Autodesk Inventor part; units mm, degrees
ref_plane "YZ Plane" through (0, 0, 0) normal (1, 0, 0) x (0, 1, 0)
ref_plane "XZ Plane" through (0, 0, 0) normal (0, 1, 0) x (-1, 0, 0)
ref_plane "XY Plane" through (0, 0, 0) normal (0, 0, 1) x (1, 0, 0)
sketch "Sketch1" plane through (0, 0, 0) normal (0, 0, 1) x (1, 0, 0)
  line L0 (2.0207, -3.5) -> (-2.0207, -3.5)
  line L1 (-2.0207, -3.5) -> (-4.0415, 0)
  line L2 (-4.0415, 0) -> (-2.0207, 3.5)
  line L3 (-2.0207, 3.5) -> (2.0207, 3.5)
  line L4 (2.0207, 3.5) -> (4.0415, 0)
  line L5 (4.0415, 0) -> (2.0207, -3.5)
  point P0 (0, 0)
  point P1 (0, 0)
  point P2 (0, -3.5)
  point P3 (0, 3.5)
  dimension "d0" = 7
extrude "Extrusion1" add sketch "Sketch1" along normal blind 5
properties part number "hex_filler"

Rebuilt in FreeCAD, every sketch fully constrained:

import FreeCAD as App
import Part
import Sketcher
from FreeCAD import Vector
Q = App.Units.Quantity

doc = App.newDocument("Part")
body = doc.addObject("PartDesign::Body", "Body")

# Sketch on XY plane
sketch1 = body.newObject("Sketcher::SketchObject", "Sketch")
sketch1.AttachmentSupport = (doc.getObject("XY_Plane"), [""])
sketch1.MapMode = "FlatFace"
sketch1.addGeometry(Part.LineSegment(Vector(-2, -3.5, 0), Vector(2, -3.5, 0)), False)
sketch1.addGeometry(Part.LineSegment(Vector(2, -3.5, 0), Vector(4, 0, 0)), False)
sketch1.addGeometry(Part.LineSegment(Vector(4, 0, 0), Vector(2, 3.5, 0)), False)
sketch1.addGeometry(Part.LineSegment(Vector(2, 3.5, 0), Vector(-2, 3.5, 0)), False)
sketch1.addGeometry(Part.LineSegment(Vector(-2, 3.5, 0), Vector(-4, 0, 0)), False)
sketch1.addGeometry(Part.LineSegment(Vector(-4, 0, 0), Vector(-2, -3.5, 0)), False)
sketch1.addConstraint(Sketcher.Constraint("Coincident", 0, 2, 1, 1))
sketch1.addConstraint(Sketcher.Constraint("Coincident", 1, 2, 2, 1))
sketch1.addConstraint(Sketcher.Constraint("Coincident", 2, 2, 3, 1))
sketch1.addConstraint(Sketcher.Constraint("Coincident", 3, 2, 4, 1))
sketch1.addConstraint(Sketcher.Constraint("Coincident", 4, 2, 5, 1))
sketch1.addConstraint(Sketcher.Constraint("Coincident", 5, 2, 0, 1))
sketch1.addConstraint(Sketcher.Constraint("Horizontal", 0))
sketch1.addConstraint(Sketcher.Constraint("Horizontal", 3))
sketch1.addConstraint(Sketcher.Constraint("Symmetric", 0, 2, 3, 2, -1, 1))
sketch1.addConstraint(Sketcher.Constraint("Symmetric", 1, 2, 4, 2, -1, 1))
sketch1.addConstraint(Sketcher.Constraint("PointOnObject", 1, 2, -1))
sketch1.addConstraint(Sketcher.Constraint("Parallel", 2, 5))
sketch1.addConstraint(Sketcher.Constraint("Vertical", 0, 2, 2, 2))
sketch1.addConstraint(Sketcher.Constraint("DistanceY", 0, 2, 2, 2, Q("7 mm")))
sketch1.addConstraint(Sketcher.Constraint("Angle", 1, Q("59.999 deg")))
sketch1.addConstraint(Sketcher.Constraint("DistanceX", 0, 1, 0, 2, Q("4.0414 mm")))
pad1 = body.newObject("PartDesign::Pad", "Pad")
pad1.Profile = sketch1
pad1.Length = 5

doc.recompute()
